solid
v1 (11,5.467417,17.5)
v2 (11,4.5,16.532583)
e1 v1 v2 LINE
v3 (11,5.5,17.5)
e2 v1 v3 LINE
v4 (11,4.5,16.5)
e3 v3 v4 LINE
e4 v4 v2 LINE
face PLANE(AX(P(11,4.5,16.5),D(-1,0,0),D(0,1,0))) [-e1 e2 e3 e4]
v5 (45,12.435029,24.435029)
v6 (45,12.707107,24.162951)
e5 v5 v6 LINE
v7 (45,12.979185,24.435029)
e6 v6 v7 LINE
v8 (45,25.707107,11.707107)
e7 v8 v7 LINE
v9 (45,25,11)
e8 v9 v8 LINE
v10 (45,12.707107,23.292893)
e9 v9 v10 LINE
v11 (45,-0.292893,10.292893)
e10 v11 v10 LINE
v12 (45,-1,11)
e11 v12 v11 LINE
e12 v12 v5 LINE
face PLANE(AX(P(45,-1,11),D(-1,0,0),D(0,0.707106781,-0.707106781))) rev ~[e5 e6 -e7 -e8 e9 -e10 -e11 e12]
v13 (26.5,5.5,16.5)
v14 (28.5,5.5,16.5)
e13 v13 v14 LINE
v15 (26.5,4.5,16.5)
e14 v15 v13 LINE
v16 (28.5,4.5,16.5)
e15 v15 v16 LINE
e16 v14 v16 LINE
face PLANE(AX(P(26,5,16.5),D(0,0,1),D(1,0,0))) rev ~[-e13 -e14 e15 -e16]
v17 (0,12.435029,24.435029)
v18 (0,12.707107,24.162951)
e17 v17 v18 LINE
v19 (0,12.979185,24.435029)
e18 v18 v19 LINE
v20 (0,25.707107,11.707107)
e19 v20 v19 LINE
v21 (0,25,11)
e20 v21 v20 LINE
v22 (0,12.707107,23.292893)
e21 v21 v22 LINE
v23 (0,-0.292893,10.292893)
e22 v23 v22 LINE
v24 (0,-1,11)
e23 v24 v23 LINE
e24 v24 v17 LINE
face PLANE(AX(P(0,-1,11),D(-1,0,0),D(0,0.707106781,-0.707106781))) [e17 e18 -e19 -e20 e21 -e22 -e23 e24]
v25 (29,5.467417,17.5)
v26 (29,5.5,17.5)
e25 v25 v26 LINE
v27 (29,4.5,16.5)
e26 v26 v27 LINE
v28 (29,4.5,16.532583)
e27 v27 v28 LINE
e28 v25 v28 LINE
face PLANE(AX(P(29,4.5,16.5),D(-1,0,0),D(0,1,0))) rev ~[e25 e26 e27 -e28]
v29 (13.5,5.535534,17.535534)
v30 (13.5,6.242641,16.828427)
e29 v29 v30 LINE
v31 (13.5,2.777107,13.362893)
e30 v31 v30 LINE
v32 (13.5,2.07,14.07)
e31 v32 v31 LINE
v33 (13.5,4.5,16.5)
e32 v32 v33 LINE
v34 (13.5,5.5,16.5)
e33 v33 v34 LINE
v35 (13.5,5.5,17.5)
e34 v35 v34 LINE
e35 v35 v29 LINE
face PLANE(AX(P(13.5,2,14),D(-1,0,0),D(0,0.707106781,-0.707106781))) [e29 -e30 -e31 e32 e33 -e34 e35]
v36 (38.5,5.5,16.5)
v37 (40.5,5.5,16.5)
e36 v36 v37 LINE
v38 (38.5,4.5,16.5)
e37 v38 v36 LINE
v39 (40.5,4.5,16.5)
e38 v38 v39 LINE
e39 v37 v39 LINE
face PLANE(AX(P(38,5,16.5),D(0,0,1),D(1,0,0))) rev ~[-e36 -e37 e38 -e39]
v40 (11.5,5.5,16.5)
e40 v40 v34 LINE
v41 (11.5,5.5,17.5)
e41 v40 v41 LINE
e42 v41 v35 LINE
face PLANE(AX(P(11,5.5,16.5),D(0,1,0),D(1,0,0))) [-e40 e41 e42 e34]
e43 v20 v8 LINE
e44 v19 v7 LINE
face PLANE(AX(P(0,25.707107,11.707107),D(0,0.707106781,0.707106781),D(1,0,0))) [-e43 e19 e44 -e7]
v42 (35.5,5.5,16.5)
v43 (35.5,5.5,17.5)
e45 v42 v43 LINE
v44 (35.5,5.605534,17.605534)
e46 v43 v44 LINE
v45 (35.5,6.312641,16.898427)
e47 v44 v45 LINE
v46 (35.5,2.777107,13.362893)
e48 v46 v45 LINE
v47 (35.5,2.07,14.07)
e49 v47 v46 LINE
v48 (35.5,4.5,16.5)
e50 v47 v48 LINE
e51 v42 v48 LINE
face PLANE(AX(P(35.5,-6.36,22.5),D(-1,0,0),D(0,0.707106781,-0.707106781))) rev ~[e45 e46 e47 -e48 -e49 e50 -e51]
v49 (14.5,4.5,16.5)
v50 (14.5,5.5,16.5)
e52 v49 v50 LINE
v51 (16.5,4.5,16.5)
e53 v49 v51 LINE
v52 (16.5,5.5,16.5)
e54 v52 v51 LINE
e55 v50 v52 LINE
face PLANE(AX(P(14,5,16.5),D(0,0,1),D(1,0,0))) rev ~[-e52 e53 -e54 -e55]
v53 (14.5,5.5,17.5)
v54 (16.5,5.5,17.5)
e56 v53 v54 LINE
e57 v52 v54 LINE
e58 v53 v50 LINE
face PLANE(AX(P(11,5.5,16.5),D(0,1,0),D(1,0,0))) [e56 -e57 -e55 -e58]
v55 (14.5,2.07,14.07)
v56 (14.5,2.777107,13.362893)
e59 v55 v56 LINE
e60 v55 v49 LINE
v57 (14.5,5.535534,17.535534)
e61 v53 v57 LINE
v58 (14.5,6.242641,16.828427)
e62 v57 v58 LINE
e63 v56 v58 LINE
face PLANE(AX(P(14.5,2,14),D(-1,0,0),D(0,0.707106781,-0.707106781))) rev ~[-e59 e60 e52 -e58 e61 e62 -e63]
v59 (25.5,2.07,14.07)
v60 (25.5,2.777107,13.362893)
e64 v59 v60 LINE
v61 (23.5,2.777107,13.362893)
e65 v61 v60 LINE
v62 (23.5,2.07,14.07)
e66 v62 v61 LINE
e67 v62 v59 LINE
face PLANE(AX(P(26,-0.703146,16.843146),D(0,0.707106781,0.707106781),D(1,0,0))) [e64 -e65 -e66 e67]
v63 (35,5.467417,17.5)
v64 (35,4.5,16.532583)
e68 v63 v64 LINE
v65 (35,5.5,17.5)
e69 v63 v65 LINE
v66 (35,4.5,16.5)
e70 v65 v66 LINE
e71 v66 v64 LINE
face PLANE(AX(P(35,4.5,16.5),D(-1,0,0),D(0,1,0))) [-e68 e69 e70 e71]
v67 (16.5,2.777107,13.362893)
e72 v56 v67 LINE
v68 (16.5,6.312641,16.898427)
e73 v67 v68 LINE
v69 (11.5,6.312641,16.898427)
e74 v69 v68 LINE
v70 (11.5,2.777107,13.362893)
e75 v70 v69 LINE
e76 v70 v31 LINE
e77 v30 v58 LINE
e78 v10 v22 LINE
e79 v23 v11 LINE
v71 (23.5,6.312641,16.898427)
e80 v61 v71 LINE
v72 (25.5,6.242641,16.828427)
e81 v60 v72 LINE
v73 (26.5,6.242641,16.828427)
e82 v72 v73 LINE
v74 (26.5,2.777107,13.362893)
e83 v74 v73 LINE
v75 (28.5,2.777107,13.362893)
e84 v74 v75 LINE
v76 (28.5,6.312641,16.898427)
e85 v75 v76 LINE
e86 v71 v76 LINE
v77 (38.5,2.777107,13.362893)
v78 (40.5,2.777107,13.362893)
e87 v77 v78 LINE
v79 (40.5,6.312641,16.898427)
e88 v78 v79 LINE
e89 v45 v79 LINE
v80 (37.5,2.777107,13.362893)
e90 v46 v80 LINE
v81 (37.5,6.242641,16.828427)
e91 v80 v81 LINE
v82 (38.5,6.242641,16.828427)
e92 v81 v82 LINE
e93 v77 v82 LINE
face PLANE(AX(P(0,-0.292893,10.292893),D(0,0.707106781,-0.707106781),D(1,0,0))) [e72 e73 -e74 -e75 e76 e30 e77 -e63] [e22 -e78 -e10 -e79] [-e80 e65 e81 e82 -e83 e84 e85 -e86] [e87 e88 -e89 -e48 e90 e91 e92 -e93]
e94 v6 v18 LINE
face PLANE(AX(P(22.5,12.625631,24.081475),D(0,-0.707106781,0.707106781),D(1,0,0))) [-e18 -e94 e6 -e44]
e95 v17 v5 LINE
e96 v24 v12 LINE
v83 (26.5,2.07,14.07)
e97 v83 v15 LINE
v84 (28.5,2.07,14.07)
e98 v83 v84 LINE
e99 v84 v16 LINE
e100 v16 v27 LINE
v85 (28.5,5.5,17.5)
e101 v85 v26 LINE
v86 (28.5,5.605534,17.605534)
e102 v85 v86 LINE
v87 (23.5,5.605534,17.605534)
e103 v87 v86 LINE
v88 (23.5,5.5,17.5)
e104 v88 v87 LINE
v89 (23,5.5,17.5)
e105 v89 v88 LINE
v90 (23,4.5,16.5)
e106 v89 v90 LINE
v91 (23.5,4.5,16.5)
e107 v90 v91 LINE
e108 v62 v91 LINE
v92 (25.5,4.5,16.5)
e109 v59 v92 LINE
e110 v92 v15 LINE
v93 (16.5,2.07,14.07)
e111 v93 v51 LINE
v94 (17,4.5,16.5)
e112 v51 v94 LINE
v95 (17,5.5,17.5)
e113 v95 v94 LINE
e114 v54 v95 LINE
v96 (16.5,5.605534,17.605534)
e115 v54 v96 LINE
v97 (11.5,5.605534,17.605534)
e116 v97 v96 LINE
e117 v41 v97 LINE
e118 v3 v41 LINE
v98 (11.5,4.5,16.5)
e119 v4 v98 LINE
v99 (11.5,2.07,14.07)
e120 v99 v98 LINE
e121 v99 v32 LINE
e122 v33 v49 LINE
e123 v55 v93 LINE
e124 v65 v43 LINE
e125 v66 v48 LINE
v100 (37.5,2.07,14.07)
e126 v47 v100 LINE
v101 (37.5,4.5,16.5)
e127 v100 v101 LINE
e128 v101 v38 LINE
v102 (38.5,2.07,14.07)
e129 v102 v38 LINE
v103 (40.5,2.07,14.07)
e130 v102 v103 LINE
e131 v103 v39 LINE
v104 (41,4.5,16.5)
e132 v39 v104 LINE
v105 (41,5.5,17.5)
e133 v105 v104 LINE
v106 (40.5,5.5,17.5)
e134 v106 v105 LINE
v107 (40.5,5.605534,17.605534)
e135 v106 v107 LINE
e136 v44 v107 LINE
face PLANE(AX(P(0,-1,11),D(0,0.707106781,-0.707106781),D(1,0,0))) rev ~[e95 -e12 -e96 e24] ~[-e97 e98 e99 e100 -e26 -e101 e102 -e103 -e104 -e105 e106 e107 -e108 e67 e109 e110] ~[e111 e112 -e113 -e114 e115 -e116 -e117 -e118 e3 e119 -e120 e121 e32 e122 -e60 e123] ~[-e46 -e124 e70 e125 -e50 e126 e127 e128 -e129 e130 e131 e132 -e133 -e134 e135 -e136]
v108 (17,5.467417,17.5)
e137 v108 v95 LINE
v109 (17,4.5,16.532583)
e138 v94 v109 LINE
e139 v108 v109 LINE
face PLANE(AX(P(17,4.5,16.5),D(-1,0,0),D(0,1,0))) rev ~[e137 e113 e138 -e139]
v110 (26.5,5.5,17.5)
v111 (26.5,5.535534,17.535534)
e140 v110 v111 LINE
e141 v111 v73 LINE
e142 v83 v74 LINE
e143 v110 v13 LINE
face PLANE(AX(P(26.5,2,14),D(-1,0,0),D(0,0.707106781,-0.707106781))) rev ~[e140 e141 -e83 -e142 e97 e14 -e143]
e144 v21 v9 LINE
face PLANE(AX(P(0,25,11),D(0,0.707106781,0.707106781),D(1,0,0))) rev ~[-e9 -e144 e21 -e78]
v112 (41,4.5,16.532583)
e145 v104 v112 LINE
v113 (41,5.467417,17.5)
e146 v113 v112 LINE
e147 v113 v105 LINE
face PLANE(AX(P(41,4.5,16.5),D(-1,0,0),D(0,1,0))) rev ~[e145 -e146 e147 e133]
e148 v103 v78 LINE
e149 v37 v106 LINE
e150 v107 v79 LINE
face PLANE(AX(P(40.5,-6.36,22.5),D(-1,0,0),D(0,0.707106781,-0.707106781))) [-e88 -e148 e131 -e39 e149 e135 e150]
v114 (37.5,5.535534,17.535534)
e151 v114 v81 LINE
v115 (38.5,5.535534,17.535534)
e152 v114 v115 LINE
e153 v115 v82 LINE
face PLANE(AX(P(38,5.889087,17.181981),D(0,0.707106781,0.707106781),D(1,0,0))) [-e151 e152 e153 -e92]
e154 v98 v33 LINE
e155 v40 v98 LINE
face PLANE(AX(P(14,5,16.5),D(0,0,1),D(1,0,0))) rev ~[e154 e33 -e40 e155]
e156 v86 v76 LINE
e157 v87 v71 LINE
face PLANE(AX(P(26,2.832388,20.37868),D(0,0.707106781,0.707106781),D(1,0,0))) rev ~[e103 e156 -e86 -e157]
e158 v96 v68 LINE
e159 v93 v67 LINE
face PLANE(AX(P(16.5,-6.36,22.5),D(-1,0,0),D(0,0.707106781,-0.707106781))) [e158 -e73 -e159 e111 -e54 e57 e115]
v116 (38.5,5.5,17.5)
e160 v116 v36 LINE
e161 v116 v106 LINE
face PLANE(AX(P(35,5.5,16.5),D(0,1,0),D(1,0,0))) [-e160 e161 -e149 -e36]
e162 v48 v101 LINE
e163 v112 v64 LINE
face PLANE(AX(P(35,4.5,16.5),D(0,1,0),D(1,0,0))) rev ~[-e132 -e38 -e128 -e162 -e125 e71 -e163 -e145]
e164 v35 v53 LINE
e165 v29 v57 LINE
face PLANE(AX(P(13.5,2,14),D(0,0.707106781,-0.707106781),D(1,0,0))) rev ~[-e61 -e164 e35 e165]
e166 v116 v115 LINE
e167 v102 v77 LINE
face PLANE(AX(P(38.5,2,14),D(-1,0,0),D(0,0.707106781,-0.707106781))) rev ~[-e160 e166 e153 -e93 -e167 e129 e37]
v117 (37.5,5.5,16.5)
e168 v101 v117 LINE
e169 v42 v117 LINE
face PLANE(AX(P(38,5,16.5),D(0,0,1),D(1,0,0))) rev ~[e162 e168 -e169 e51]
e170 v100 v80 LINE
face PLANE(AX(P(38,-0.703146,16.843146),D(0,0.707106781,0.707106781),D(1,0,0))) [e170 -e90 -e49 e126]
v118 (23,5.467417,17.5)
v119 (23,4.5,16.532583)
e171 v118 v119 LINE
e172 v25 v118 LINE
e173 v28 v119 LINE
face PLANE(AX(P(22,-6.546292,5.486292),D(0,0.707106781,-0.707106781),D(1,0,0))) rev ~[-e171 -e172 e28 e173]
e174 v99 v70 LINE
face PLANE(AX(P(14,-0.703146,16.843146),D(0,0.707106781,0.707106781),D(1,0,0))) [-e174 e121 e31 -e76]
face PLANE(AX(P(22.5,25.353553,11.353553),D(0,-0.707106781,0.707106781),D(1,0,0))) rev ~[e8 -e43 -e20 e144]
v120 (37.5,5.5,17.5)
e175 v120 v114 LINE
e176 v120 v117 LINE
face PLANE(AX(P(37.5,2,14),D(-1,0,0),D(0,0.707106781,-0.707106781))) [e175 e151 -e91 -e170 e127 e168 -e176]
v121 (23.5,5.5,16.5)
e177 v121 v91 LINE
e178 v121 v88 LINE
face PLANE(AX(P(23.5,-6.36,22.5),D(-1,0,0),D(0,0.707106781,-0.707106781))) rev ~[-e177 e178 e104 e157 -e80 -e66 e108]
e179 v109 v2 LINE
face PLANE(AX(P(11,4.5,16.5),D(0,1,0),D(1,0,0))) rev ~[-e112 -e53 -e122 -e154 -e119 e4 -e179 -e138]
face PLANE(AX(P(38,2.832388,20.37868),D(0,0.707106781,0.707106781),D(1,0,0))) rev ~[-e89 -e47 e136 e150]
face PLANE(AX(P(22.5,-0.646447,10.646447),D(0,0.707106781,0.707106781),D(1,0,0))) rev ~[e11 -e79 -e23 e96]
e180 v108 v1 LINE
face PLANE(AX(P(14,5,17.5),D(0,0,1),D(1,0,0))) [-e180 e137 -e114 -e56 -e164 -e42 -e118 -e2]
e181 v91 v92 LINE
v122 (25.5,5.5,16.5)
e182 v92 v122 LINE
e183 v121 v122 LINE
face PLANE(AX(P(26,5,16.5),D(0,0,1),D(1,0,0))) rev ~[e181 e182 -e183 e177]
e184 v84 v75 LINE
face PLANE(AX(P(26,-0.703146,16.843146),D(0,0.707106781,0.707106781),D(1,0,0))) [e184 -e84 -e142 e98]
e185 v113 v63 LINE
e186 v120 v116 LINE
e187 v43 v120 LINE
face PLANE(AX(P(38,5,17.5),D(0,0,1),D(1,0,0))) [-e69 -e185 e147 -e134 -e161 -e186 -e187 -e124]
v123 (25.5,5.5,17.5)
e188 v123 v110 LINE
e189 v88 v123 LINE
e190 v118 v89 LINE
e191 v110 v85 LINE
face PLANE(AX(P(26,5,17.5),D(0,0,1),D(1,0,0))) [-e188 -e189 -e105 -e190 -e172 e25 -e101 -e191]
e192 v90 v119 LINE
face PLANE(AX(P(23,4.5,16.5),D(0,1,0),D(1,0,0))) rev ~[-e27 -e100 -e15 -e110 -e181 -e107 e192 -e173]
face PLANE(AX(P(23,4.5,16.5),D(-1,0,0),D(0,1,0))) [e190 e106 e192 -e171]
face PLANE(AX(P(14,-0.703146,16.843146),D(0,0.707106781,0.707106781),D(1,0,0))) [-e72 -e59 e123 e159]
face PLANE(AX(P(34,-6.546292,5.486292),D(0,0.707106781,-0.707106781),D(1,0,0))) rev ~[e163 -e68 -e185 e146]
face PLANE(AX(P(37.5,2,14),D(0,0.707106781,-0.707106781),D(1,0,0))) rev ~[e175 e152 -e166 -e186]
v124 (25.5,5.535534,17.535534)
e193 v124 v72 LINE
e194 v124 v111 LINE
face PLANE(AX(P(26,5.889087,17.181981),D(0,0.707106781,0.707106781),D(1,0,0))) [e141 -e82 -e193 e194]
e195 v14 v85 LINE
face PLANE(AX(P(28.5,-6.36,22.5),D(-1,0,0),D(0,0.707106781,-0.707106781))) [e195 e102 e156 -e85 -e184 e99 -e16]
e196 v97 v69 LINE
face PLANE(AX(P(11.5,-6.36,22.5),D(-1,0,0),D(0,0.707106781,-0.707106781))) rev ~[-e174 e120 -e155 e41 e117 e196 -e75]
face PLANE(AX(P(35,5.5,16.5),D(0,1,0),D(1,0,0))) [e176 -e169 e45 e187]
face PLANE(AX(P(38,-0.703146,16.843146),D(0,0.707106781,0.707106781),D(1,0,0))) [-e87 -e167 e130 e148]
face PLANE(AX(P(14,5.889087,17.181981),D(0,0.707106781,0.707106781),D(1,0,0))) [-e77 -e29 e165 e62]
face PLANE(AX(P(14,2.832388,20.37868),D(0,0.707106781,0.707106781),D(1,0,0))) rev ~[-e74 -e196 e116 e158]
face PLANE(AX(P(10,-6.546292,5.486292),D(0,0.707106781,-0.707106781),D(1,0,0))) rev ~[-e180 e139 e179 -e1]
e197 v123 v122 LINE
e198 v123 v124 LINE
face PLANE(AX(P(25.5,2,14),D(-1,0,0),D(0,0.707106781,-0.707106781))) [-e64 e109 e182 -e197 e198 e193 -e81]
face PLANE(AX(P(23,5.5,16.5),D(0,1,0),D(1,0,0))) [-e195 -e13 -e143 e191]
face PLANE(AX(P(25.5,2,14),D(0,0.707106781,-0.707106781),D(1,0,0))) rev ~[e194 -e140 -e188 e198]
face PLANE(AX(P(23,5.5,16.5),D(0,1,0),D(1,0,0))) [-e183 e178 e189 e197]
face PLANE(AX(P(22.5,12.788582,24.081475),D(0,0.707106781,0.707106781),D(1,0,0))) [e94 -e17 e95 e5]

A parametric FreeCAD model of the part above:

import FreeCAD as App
import Part
import Sketcher

doc = App.newDocument("Part")
body = doc.addObject("PartDesign::Body", "Body")

sketch1 = body.newObject("Sketcher::SketchObject", "Sketch")
sketch1.AttachmentSupport = (doc.getObject("XY_Plane"), [""])
sketch1.MapMode = "FlatFace"
sketch1.addGeometry([
    Part.LineSegment(App.Vector(0, 16, 0), App.Vector(0, 0, 0)),
    Part.LineSegment(App.Vector(0, 0, 0), App.Vector(12, 0, 0)),
    Part.LineSegment(App.Vector(12, 0, 0), App.Vector(12, 16, 0)),
    Part.LineSegment(App.Vector(12, 16, 0), App.Vector(0, 16, 0)),
], False)
sketch1.addConstraint([
    Sketcher.Constraint("Coincident", 0, 2, 1, 1),
    Sketcher.Constraint("Coincident", 1, 2, 2, 1),
    Sketcher.Constraint("Coincident", 2, 2, 3, 1),
    Sketcher.Constraint("Coincident", 3, 2, 0, 1),
    Sketcher.Constraint("Vertical", 0),
    Sketcher.Constraint("Horizontal", 1),
    Sketcher.Constraint("Vertical", 2),
    Sketcher.Constraint("Horizontal", 3),
    Sketcher.Constraint("Coincident", 0, 2, -1, 1),
    Sketcher.Constraint("DistanceX", 1, 1, 1, 2, 12.0),
    Sketcher.Constraint("DistanceY", 0, 2, 0, 1, 16.0),
])
pad1 = body.newObject("PartDesign::Pad", "Pad")
pad1.Profile = sketch1
pad1.Length = 23
body2 = doc.addObject("PartDesign::Body", "Body001")
doc.recompute()

body.Placement = App.Placement(App.Vector(22, -11.36, 22.5), App.Rotation(App.Vector(-1, 0, 0), 45))
boolean = body2.newObject("PartDesign::Boolean", "Boolean")
boolean.Type = "Fuse"
boolean.addObjects([body])
body3 = doc.addObject("PartDesign::Body", "Body002")

sketch2 = body3.newObject("Sketcher::SketchObject", "Sketch001")
sketch2.AttachmentSupport = (doc.getObject("XY_Plane002"), [""])
sketch2.MapMode = "FlatFace"
sketch2.AttachmentOffset = App.Placement(App.Vector(0, 0, 22.2), App.Rotation())
sketch2.addGeometry([
    Part.LineSegment(App.Vector(23, 12, 0), App.Vector(23, 11, 0)),
    Part.LineSegment(App.Vector(23, 11, 0), App.Vector(29, 11, 0)),
    Part.LineSegment(App.Vector(29, 11, 0), App.Vector(29, 12, 0)),
    Part.LineSegment(App.Vector(29, 12, 0), App.Vector(23, 12, 0)),
], False)
sketch2.addConstraint([
    Sketcher.Constraint("Coincident", 0, 2, 1, 1),
    Sketcher.Constraint("Coincident", 1, 2, 2, 1),
    Sketcher.Constraint("Coincident", 2, 2, 3, 1),
    Sketcher.Constraint("Coincident", 3, 2, 0, 1),
    Sketcher.Constraint("Vertical", 0),
    Sketcher.Constraint("Horizontal", 1),
    Sketcher.Constraint("Vertical", 2),
    Sketcher.Constraint("Horizontal", 3),
    Sketcher.Constraint("DistanceX", 1, 1, 1, 2, 6.0),
    Sketcher.Constraint("DistanceY", 0, 2, 0, 1, 1.0),
    Sketcher.Constraint("DistanceX", -1, 1, 0, 2, 23.0),
    Sketcher.Constraint("DistanceY", -1, 1, 0, 2, 11.0),
])
pad2 = body3.newObject("PartDesign::Pad", "Pad001")
pad2.Profile = sketch2
pad2.Length = 1
doc.recompute()

boolean2 = body3.newObject("PartDesign::Boolean", "Boolean001")
boolean2.Type = "Cut"
boolean2.addObjects([body2])
body4 = doc.addObject("PartDesign::Body", "Body003")
doc.recompute()

body3.Placement = App.Placement(App.Vector(-12, -6.5, -5.7), App.Rotation(App.Vector(0, 0, 1), 0))
boolean3 = body4.newObject("PartDesign::Boolean", "Boolean002")
boolean3.Type = "Fuse"
boolean3.addObjects([body3])
body5 = doc.addObject("PartDesign::Body", "Body004")

sketch3 = body5.newObject("Sketcher::SketchObject", "Sketch002")
sketch3.AttachmentSupport = (doc.getObject("XY_Plane004"), [""])
sketch3.MapMode = "FlatFace"
sketch3.addGeometry([
    Part.LineSegment(App.Vector(0, 1, 0), App.Vector(0, 0, 0)),
    Part.LineSegment(App.Vector(0, 0, 0), App.Vector(1, 0, 0)),
    Part.LineSegment(App.Vector(1, 0, 0), App.Vector(1, 1, 0)),
    Part.LineSegment(App.Vector(1, 1, 0), App.Vector(0, 1, 0)),
], False)
sketch3.addConstraint([
    Sketcher.Constraint("Coincident", 0, 2, 1, 1),
    Sketcher.Constraint("Coincident", 1, 2, 2, 1),
    Sketcher.Constraint("Coincident", 2, 2, 3, 1),
    Sketcher.Constraint("Coincident", 3, 2, 0, 1),
    Sketcher.Constraint("Vertical", 0),
    Sketcher.Constraint("Horizontal", 1),
    Sketcher.Constraint("Vertical", 2),
    Sketcher.Constraint("Horizontal", 3),
    Sketcher.Constraint("Coincident", 0, 2, -1, 1),
    Sketcher.Constraint("Equal", 3, 0),
    Sketcher.Constraint("DistanceX", 1, 1, 1, 2, 1.0),
])
pad3 = body5.newObject("PartDesign::Pad", "Pad002")
pad3.Profile = sketch3
pad3.Length = 5
body6 = doc.addObject("PartDesign::Body", "Body005")
doc.recompute()

body5.Placement = App.Placement(App.Vector(13.5, 2, 14), App.Rotation(App.Vector(-1, 0, 0), 45))
boolean4 = body6.newObject("PartDesign::Boolean", "Boolean003")
boolean4.Type = "Fuse"
boolean4.addObjects([body5])
doc.recompute()

boolean5 = body6.newObject("PartDesign::Boolean", "Boolean004")
boolean5.Type = "Fuse"
boolean5.addObjects([body4])
body7 = doc.addObject("PartDesign::Body", "Body006")
doc.recompute()

body6.Placement = App.Placement(App.Vector(12, 0, 0), App.Rotation(App.Vector(0, 0, 1), 0))
boolean6 = body7.newObject("PartDesign::Boolean", "Boolean005")
boolean6.Type = "Fuse"
boolean6.addObjects([body6])
body8 = doc.addObject("PartDesign::Body", "Body007")

sketch4 = body8.newObject("Sketcher::SketchObject", "Sketch003")
sketch4.AttachmentSupport = (doc.getObject("XY_Plane007"), [""])
sketch4.MapMode = "FlatFace"
sketch4.addGeometry([
    Part.LineSegment(App.Vector(0, 16, 0), App.Vector(0, 0, 0)),
    Part.LineSegment(App.Vector(0, 0, 0), App.Vector(12, 0, 0)),
    Part.LineSegment(App.Vector(12, 0, 0), App.Vector(12, 16, 0)),
    Part.LineSegment(App.Vector(12, 16, 0), App.Vector(0, 16, 0)),
], False)
sketch4.addConstraint([
    Sketcher.Constraint("Coincident", 0, 2, 1, 1),
    Sketcher.Constraint("Coincident", 1, 2, 2, 1),
    Sketcher.Constraint("Coincident", 2, 2, 3, 1),
    Sketcher.Constraint("Coincident", 3, 2, 0, 1),
    Sketcher.Constraint("Vertical", 0),
    Sketcher.Constraint("Horizontal", 1),
    Sketcher.Constraint("Vertical", 2),
    Sketcher.Constraint("Horizontal", 3),
    Sketcher.Constraint("Coincident", 0, 2, -1, 1),
    Sketcher.Constraint("DistanceX", 1, 1, 1, 2, 12.0),
    Sketcher.Constraint("DistanceY", 0, 2, 0, 1, 16.0),
])
pad4 = body8.newObject("PartDesign::Pad", "Pad003")
pad4.Profile = sketch4
pad4.Length = 23
body9 = doc.addObject("PartDesign::Body", "Body008")
doc.recompute()

body8.Placement = App.Placement(App.Vector(22, -11.36, 22.5), App.Rotation(App.Vector(-1, 0, 0), 45))
boolean7 = body9.newObject("PartDesign::Boolean", "Boolean006")
boolean7.Type = "Fuse"
boolean7.addObjects([body8])
body10 = doc.addObject("PartDesign::Body", "Body009")

sketch5 = body10.newObject("Sketcher::SketchObject", "Sketch004")
sketch5.AttachmentSupport = (doc.getObject("XY_Plane009"), [""])
sketch5.MapMode = "FlatFace"
sketch5.AttachmentOffset = App.Placement(App.Vector(0, 0, 22.2), App.Rotation())
sketch5.addGeometry([
    Part.LineSegment(App.Vector(23, 12, 0), App.Vector(23, 11, 0)),
    Part.LineSegment(App.Vector(23, 11, 0), App.Vector(29, 11, 0)),
    Part.LineSegment(App.Vector(29, 11, 0), App.Vector(29, 12, 0)),
    Part.LineSegment(App.Vector(29, 12, 0), App.Vector(23, 12, 0)),
], False)
sketch5.addConstraint([
    Sketcher.Constraint("Coincident", 0, 2, 1, 1),
    Sketcher.Constraint("Coincident", 1, 2, 2, 1),
    Sketcher.Constraint("Coincident", 2, 2, 3, 1),
    Sketcher.Constraint("Coincident", 3, 2, 0, 1),
    Sketcher.Constraint("Vertical", 0),
    Sketcher.Constraint("Horizontal", 1),
    Sketcher.Constraint("Vertical", 2),
    Sketcher.Constraint("Horizontal", 3),
    Sketcher.Constraint("DistanceX", 1, 1, 1, 2, 6.0),
    Sketcher.Constraint("DistanceY", 0, 2, 0, 1, 1.0),
    Sketcher.Constraint("DistanceX", -1, 1, 0, 2, 23.0),
    Sketcher.Constraint("DistanceY", -1, 1, 0, 2, 11.0),
])
pad5 = body10.newObject("PartDesign::Pad", "Pad004")
pad5.Profile = sketch5
pad5.Length = 1
doc.recompute()

boolean8 = body10.newObject("PartDesign::Boolean", "Boolean007")
boolean8.Type = "Cut"
boolean8.addObjects([body9])
body11 = doc.addObject("PartDesign::Body", "Body010")
doc.recompute()

body10.Placement = App.Placement(App.Vector(-12, -6.5, -5.7), App.Rotation(App.Vector(0, 0, 1), 0))
boolean9 = body11.newObject("PartDesign::Boolean", "Boolean008")
boolean9.Type = "Fuse"
boolean9.addObjects([body10])
body12 = doc.addObject("PartDesign::Body", "Body011")

sketch6 = body12.newObject("Sketcher::SketchObject", "Sketch005")
sketch6.AttachmentSupport = (doc.getObject("XY_Plane011"), [""])
sketch6.MapMode = "FlatFace"
sketch6.addGeometry([
    Part.LineSegment(App.Vector(0, 1, 0), App.Vector(0, 0, 0)),
    Part.LineSegment(App.Vector(0, 0, 0), App.Vector(1, 0, 0)),
    Part.LineSegment(App.Vector(1, 0, 0), App.Vector(1, 1, 0)),
    Part.LineSegment(App.Vector(1, 1, 0), App.Vector(0, 1, 0)),
], False)
sketch6.addConstraint([
    Sketcher.Constraint("Coincident", 0, 2, 1, 1),
    Sketcher.Constraint("Coincident", 1, 2, 2, 1),
    Sketcher.Constraint("Coincident", 2, 2, 3, 1),
    Sketcher.Constraint("Coincident", 3, 2, 0, 1),
    Sketcher.Constraint("Vertical", 0),
    Sketcher.Constraint("Horizontal", 1),
    Sketcher.Constraint("Vertical", 2),
    Sketcher.Constraint("Horizontal", 3),
    Sketcher.Constraint("Coincident", 0, 2, -1, 1),
    Sketcher.Constraint("Equal", 3, 0),
    Sketcher.Constraint("DistanceX", 1, 1, 1, 2, 1.0),
])
pad6 = body12.newObject("PartDesign::Pad", "Pad005")
pad6.Profile = sketch6
pad6.Length = 5
body13 = doc.addObject("PartDesign::Body", "Body012")
doc.recompute()

body12.Placement = App.Placement(App.Vector(13.5, 2, 14), App.Rotation(App.Vector(-1, 0, 0), 45))
boolean10 = body13.newObject("PartDesign::Boolean", "Boolean009")
boolean10.Type = "Fuse"
boolean10.addObjects([body12])
doc.recompute()

boolean11 = body13.newObject("PartDesign::Boolean", "Boolean010")
boolean11.Type = "Fuse"
boolean11.addObjects([body11])
body14 = doc.addObject("PartDesign::Body", "Body013")

sketch7 = body14.newObject("Sketcher::SketchObject", "Sketch006")
sketch7.AttachmentSupport = (doc.getObject("XY_Plane013"), [""])
sketch7.MapMode = "FlatFace"
sketch7.addGeometry([
    Part.LineSegment(App.Vector(0, 16, 0), App.Vector(0, 0, 0)),
    Part.LineSegment(App.Vector(0, 0, 0), App.Vector(5, 0, 0)),
    Part.LineSegment(App.Vector(5, 0, 0), App.Vector(5, 16, 0)),
    Part.LineSegment(App.Vector(5, 16, 0), App.Vector(0, 16, 0)),
], False)
sketch7.addConstraint([
    Sketcher.Constraint("Coincident", 0, 2, 1, 1),
    Sketcher.Constraint("Coincident", 1, 2, 2, 1),
    Sketcher.Constraint("Coincident", 2, 2, 3, 1),
    Sketcher.Constraint("Coincident", 3, 2, 0, 1),
    Sketcher.Constraint("Vertical", 0),
    Sketcher.Constraint("Horizontal", 1),
    Sketcher.Constraint("Vertical", 2),
    Sketcher.Constraint("Horizontal", 3),
    Sketcher.Constraint("Coincident", 0, 2, -1, 1),
    Sketcher.Constraint("DistanceX", 1, 1, 1, 2, 5.0),
    Sketcher.Constraint("DistanceY", 0, 2, 0, 1, 16.0),
])
pad7 = body14.newObject("PartDesign::Pad", "Pad006")
pad7.Profile = sketch7
pad7.Length = 5
body15 = doc.addObject("PartDesign::Body", "Body014")
doc.recompute()

body14.Placement = App.Placement(App.Vector(35.5, -6.36, 22.5), App.Rotation(App.Vector(-1, 0, 0), 45))
boolean12 = body15.newObject("PartDesign::Boolean", "Boolean011")
boolean12.Type = "Fuse"
boolean12.addObjects([body14])
body16 = doc.addObject("PartDesign::Body", "Body015")

sketch8 = body16.newObject("Sketcher::SketchObject", "Sketch007")
sketch8.AttachmentSupport = (doc.getObject("XY_Plane015"), [""])
sketch8.MapMode = "FlatFace"
sketch8.addGeometry([
    Part.LineSegment(App.Vector(0, 16, 0), App.Vector(0, 0, 0)),
    Part.LineSegment(App.Vector(0, 0, 0), App.Vector(5, 0, 0)),
    Part.LineSegment(App.Vector(5, 0, 0), App.Vector(5, 16, 0)),
    Part.LineSegment(App.Vector(5, 16, 0), App.Vector(0, 16, 0)),
], False)
sketch8.addConstraint([
    Sketcher.Constraint("Coincident", 0, 2, 1, 1),
    Sketcher.Constraint("Coincident", 1, 2, 2, 1),
    Sketcher.Constraint("Coincident", 2, 2, 3, 1),
    Sketcher.Constraint("Coincident", 3, 2, 0, 1),
    Sketcher.Constraint("Vertical", 0),
    Sketcher.Constraint("Horizontal", 1),
    Sketcher.Constraint("Vertical", 2),
    Sketcher.Constraint("Horizontal", 3),
    Sketcher.Constraint("Coincident", 0, 2, -1, 1),
    Sketcher.Constraint("DistanceX", 1, 1, 1, 2, 5.0),
    Sketcher.Constraint("DistanceY", 0, 2, 0, 1, 16.0),
])
pad8 = body16.newObject("PartDesign::Pad", "Pad007")
pad8.Profile = sketch8
pad8.Length = 5
body17 = doc.addObject("PartDesign::Body", "Body016")
doc.recompute()

body16.Placement = App.Placement(App.Vector(11.5, -6.36, 22.5), App.Rotation(App.Vector(-1, 0, 0), 45))
boolean13 = body17.newObject("PartDesign::Boolean", "Boolean012")
boolean13.Type = "Fuse"
boolean13.addObjects([body16])
body18 = doc.addObject("PartDesign::Body", "Body017")

sketch9 = body18.newObject("Sketcher::SketchObject", "Sketch008")
sketch9.AttachmentSupport = (doc.getObject("XY_Plane017"), [""])
sketch9.MapMode = "FlatFace"
sketch9.addGeometry([
    Part.LineSegment(App.Vector(0, 16, 0), App.Vector(0, 0, 0)),
    Part.LineSegment(App.Vector(0, 0, 0), App.Vector(5, 0, 0)),
    Part.LineSegment(App.Vector(5, 0, 0), App.Vector(5, 16, 0)),
    Part.LineSegment(App.Vector(5, 16, 0), App.Vector(0, 16, 0)),
], False)
sketch9.addConstraint([
    Sketcher.Constraint("Coincident", 0, 2, 1, 1),
    Sketcher.Constraint("Coincident", 1, 2, 2, 1),
    Sketcher.Constraint("Coincident", 2, 2, 3, 1),
    Sketcher.Constraint("Coincident", 3, 2, 0, 1),
    Sketcher.Constraint("Vertical", 0),
    Sketcher.Constraint("Horizontal", 1),
    Sketcher.Constraint("Vertical", 2),
    Sketcher.Constraint("Horizontal", 3),
    Sketcher.Constraint("Coincident", 0, 2, -1, 1),
    Sketcher.Constraint("DistanceX", 1, 1, 1, 2, 5.0),
    Sketcher.Constraint("DistanceY", 0, 2, 0, 1, 16.0),
])
pad9 = body18.newObject("PartDesign::Pad", "Pad008")
pad9.Profile = sketch9
pad9.Length = 5
body19 = doc.addObject("PartDesign::Body", "Body018")
doc.recompute()

body18.Placement = App.Placement(App.Vector(23.5, -6.36, 22.5), App.Rotation(App.Vector(-1, 0, 0), 45))
boolean14 = body19.newObject("PartDesign::Boolean", "Boolean013")
boolean14.Type = "Fuse"
boolean14.addObjects([body18])
body20 = doc.addObject("PartDesign::Body", "Body019")

sketch10 = body20.newObject("Sketcher::SketchObject", "Sketch009")
sketch10.AttachmentSupport = (doc.getObject("XY_Plane019"), [""])
sketch10.MapMode = "FlatFace"
sketch10.addGeometry([
    Part.LineSegment(App.Vector(0, 1, 0), App.Vector(0, 0, 0)),
    Part.LineSegment(App.Vector(0, 0, 0), App.Vector(45, 0, 0)),
    Part.LineSegment(App.Vector(45, 0, 0), App.Vector(45, 1, 0)),
    Part.LineSegment(App.Vector(45, 1, 0), App.Vector(0, 1, 0)),
], False)
sketch10.addConstraint([
    Sketcher.Constraint("Coincident", 0, 2, 1, 1),
    Sketcher.Constraint("Coincident", 1, 2, 2, 1),
    Sketcher.Constraint("Coincident", 2, 2, 3, 1),
    Sketcher.Constraint("Coincident", 3, 2, 0, 1),
    Sketcher.Constraint("Vertical", 0),
    Sketcher.Constraint("Horizontal", 1),
    Sketcher.Constraint("Vertical", 2),
    Sketcher.Constraint("Horizontal", 3),
    Sketcher.Constraint("Coincident", 0, 2, -1, 1),
    Sketcher.Constraint("DistanceX", 1, 1, 1, 2, 45.0),
    Sketcher.Constraint("DistanceY", 0, 2, 0, 1, 1.0),
])
pad10 = body20.newObject("PartDesign::Pad", "Pad009")
pad10.Profile = sketch10
pad10.Length = 19
body21 = doc.addObject("PartDesign::Body", "Body020")
doc.recompute()

body20.Placement = App.Placement(App.Vector(0, -1, 11), App.Rotation(App.Vector(-1, 0, 0), 45))
boolean15 = body21.newObject("PartDesign::Boolean", "Boolean014")
boolean15.Type = "Fuse"
boolean15.addObjects([body20])
body22 = doc.addObject("PartDesign::Body", "Body021")

sketch11 = body22.newObject("Sketcher::SketchObject", "Sketch010")
sketch11.AttachmentSupport = (doc.getObject("XY_Plane021"), [""])
sketch11.MapMode = "FlatFace"
sketch11.addGeometry([
    Part.LineSegment(App.Vector(0, 1, 0), App.Vector(0, 0, 0)),
    Part.LineSegment(App.Vector(0, 0, 0), App.Vector(45, 0, 0)),
    Part.LineSegment(App.Vector(45, 0, 0), App.Vector(45, 1, 0)),
    Part.LineSegment(App.Vector(45, 1, 0), App.Vector(0, 1, 0)),
], False)
sketch11.addConstraint([
    Sketcher.Constraint("Coincident", 0, 2, 1, 1),
    Sketcher.Constraint("Coincident", 1, 2, 2, 1),
    Sketcher.Constraint("Coincident", 2, 2, 3, 1),
    Sketcher.Constraint("Coincident", 3, 2, 0, 1),
    Sketcher.Constraint("Vertical", 0),
    Sketcher.Constraint("Horizontal", 1),
    Sketcher.Constraint("Vertical", 2),
    Sketcher.Constraint("Horizontal", 3),
    Sketcher.Constraint("Coincident", 0, 2, -1, 1),
    Sketcher.Constraint("DistanceX", 1, 1, 1, 2, 45.0),
    Sketcher.Constraint("DistanceY", 0, 2, 0, 1, 1.0),
])
pad11 = body22.newObject("PartDesign::Pad", "Pad010")
pad11.Profile = sketch11
pad11.Length = 18
body23 = doc.addObject("PartDesign::Body", "Body022")
doc.recompute()

body22.Placement = App.Placement(App.Vector(0, 25, 11), App.Rotation(App.Vector(1, 0, 0), 45))
boolean16 = body23.newObject("PartDesign::Boolean", "Boolean015")
boolean16.Type = "Fuse"
boolean16.addObjects([body22])
doc.recompute()

boolean17 = body23.newObject("PartDesign::Boolean", "Boolean016")
boolean17.Type = "Fuse"
boolean17.addObjects([body21])
doc.recompute()

boolean18 = body23.newObject("PartDesign::Boolean", "Boolean017")
boolean18.Type = "Cut"
boolean18.addObjects([body19])
doc.recompute()

boolean19 = body23.newObject("PartDesign::Boolean", "Boolean018")
boolean19.Type = "Cut"
boolean19.addObjects([body17])
doc.recompute()

boolean20 = body23.newObject("PartDesign::Boolean", "Boolean019")
boolean20.Type = "Cut"
boolean20.addObjects([body15])
body24 = doc.addObject("PartDesign::Body", "Body023")

sketch12 = body24.newObject("Sketcher::SketchObject", "Sketch011")
sketch12.AttachmentSupport = (doc.getObject("XY_Plane023"), [""])
sketch12.MapMode = "FlatFace"
sketch12.addGeometry([
    Part.LineSegment(App.Vector(0, 16, 0), App.Vector(0, 0, 0)),
    Part.LineSegment(App.Vector(0, 0, 0), App.Vector(12, 0, 0)),
    Part.LineSegment(App.Vector(12, 0, 0), App.Vector(12, 16, 0)),
    Part.LineSegment(App.Vector(12, 16, 0), App.Vector(0, 16, 0)),
], False)
sketch12.addConstraint([
    Sketcher.Constraint("Coincident", 0, 2, 1, 1),
    Sketcher.Constraint("Coincident", 1, 2, 2, 1),
    Sketcher.Constraint("Coincident", 2, 2, 3, 1),
    Sketcher.Constraint("Coincident", 3, 2, 0, 1),
    Sketcher.Constraint("Vertical", 0),
    Sketcher.Constraint("Horizontal", 1),
    Sketcher.Constraint("Vertical", 2),
    Sketcher.Constraint("Horizontal", 3),
    Sketcher.Constraint("Coincident", 0, 2, -1, 1),
    Sketcher.Constraint("DistanceX", 1, 1, 1, 2, 12.0),
    Sketcher.Constraint("DistanceY", 0, 2, 0, 1, 16.0),
])
pad12 = body24.newObject("PartDesign::Pad", "Pad011")
pad12.Profile = sketch12
pad12.Length = 23
body25 = doc.addObject("PartDesign::Body", "Body024")
doc.recompute()

body24.Placement = App.Placement(App.Vector(22, -11.36, 22.5), App.Rotation(App.Vector(-1, 0, 0), 45))
boolean21 = body25.newObject("PartDesign::Boolean", "Boolean020")
boolean21.Type = "Fuse"
boolean21.addObjects([body24])
body26 = doc.addObject("PartDesign::Body", "Body025")

sketch13 = body26.newObject("Sketcher::SketchObject", "Sketch012")
sketch13.AttachmentSupport = (doc.getObject("XY_Plane025"), [""])
sketch13.MapMode = "FlatFace"
sketch13.AttachmentOffset = App.Placement(App.Vector(0, 0, 22.2), App.Rotation())
sketch13.addGeometry([
    Part.LineSegment(App.Vector(23, 12, 0), App.Vector(23, 11, 0)),
    Part.LineSegment(App.Vector(23, 11, 0), App.Vector(29, 11, 0)),
    Part.LineSegment(App.Vector(29, 11, 0), App.Vector(29, 12, 0)),
    Part.LineSegment(App.Vector(29, 12, 0), App.Vector(23, 12, 0)),
], False)
sketch13.addConstraint([
    Sketcher.Constraint("Coincident", 0, 2, 1, 1),
    Sketcher.Constraint("Coincident", 1, 2, 2, 1),
    Sketcher.Constraint("Coincident", 2, 2, 3, 1),
    Sketcher.Constraint("Coincident", 3, 2, 0, 1),
    Sketcher.Constraint("Vertical", 0),
    Sketcher.Constraint("Horizontal", 1),
    Sketcher.Constraint("Vertical", 2),
    Sketcher.Constraint("Horizontal", 3),
    Sketcher.Constraint("DistanceX", 1, 1, 1, 2, 6.0),
    Sketcher.Constraint("DistanceY", 0, 2, 0, 1, 1.0),
    Sketcher.Constraint("DistanceX", -1, 1, 0, 2, 23.0),
    Sketcher.Constraint("DistanceY", -1, 1, 0, 2, 11.0),
])
pad13 = body26.newObject("PartDesign::Pad", "Pad012")
pad13.Profile = sketch13
pad13.Length = 1
doc.recompute()

boolean22 = body26.newObject("PartDesign::Boolean", "Boolean021")
boolean22.Type = "Cut"
boolean22.addObjects([body25])
body27 = doc.addObject("PartDesign::Body", "Body026")
doc.recompute()

body26.Placement = App.Placement(App.Vector(-12, -6.5, -5.7), App.Rotation(App.Vector(0, 0, 1), 0))
boolean23 = body27.newObject("PartDesign::Boolean", "Boolean022")
boolean23.Type = "Fuse"
boolean23.addObjects([body26])
body28 = doc.addObject("PartDesign::Body", "Body027")

sketch14 = body28.newObject("Sketcher::SketchObject", "Sketch013")
sketch14.AttachmentSupport = (doc.getObject("XY_Plane027"), [""])
sketch14.MapMode = "FlatFace"
sketch14.addGeometry([
    Part.LineSegment(App.Vector(0, 1, 0), App.Vector(0, 0, 0)),
    Part.LineSegment(App.Vector(0, 0, 0), App.Vector(1, 0, 0)),
    Part.LineSegment(App.Vector(1, 0, 0), App.Vector(1, 1, 0)),
    Part.LineSegment(App.Vector(1, 1, 0), App.Vector(0, 1, 0)),
], False)
sketch14.addConstraint([
    Sketcher.Constraint("Coincident", 0, 2, 1, 1),
    Sketcher.Constraint("Coincident", 1, 2, 2, 1),
    Sketcher.Constraint("Coincident", 2, 2, 3, 1),
    Sketcher.Constraint("Coincident", 3, 2, 0, 1),
    Sketcher.Constraint("Vertical", 0),
    Sketcher.Constraint("Horizontal", 1),
    Sketcher.Constraint("Vertical", 2),
    Sketcher.Constraint("Horizontal", 3),
    Sketcher.Constraint("Coincident", 0, 2, -1, 1),
    Sketcher.Constraint("Equal", 3, 0),
    Sketcher.Constraint("DistanceX", 1, 1, 1, 2, 1.0),
])
pad14 = body28.newObject("PartDesign::Pad", "Pad013")
pad14.Profile = sketch14
pad14.Length = 5
body29 = doc.addObject("PartDesign::Body", "Body028")
doc.recompute()

body28.Placement = App.Placement(App.Vector(13.5, 2, 14), App.Rotation(App.Vector(-1, 0, 0), 45))
boolean24 = body29.newObject("PartDesign::Boolean", "Boolean023")
boolean24.Type = "Fuse"
boolean24.addObjects([body28])
doc.recompute()

boolean25 = body29.newObject("PartDesign::Boolean", "Boolean024")
boolean25.Type = "Fuse"
boolean25.addObjects([body27])
body30 = doc.addObject("PartDesign::Body", "Body029")
body30.AllowCompound = True
doc.recompute()

body29.Placement = App.Placement(App.Vector(24, 0, 0), App.Rotation(App.Vector(0, 0, 1), 0))
boolean26 = body30.newObject("PartDesign::Boolean", "Boolean025")
boolean26.Type = "Fuse"
boolean26.addObjects([body29])
doc.recompute()

boolean27 = body30.newObject("PartDesign::Boolean", "Boolean026")
boolean27.Type = "Fuse"
boolean27.addObjects([body7])
doc.recompute()

boolean28 = body30.newObject("PartDesign::Boolean", "Boolean027")
boolean28.Type = "Fuse"
boolean28.addObjects([body13])
doc.recompute()

boolean29 = body30.newObject("PartDesign::Boolean", "Boolean028")
boolean29.Type = "Fuse"
boolean29.addObjects([body23])

doc.recompute()
